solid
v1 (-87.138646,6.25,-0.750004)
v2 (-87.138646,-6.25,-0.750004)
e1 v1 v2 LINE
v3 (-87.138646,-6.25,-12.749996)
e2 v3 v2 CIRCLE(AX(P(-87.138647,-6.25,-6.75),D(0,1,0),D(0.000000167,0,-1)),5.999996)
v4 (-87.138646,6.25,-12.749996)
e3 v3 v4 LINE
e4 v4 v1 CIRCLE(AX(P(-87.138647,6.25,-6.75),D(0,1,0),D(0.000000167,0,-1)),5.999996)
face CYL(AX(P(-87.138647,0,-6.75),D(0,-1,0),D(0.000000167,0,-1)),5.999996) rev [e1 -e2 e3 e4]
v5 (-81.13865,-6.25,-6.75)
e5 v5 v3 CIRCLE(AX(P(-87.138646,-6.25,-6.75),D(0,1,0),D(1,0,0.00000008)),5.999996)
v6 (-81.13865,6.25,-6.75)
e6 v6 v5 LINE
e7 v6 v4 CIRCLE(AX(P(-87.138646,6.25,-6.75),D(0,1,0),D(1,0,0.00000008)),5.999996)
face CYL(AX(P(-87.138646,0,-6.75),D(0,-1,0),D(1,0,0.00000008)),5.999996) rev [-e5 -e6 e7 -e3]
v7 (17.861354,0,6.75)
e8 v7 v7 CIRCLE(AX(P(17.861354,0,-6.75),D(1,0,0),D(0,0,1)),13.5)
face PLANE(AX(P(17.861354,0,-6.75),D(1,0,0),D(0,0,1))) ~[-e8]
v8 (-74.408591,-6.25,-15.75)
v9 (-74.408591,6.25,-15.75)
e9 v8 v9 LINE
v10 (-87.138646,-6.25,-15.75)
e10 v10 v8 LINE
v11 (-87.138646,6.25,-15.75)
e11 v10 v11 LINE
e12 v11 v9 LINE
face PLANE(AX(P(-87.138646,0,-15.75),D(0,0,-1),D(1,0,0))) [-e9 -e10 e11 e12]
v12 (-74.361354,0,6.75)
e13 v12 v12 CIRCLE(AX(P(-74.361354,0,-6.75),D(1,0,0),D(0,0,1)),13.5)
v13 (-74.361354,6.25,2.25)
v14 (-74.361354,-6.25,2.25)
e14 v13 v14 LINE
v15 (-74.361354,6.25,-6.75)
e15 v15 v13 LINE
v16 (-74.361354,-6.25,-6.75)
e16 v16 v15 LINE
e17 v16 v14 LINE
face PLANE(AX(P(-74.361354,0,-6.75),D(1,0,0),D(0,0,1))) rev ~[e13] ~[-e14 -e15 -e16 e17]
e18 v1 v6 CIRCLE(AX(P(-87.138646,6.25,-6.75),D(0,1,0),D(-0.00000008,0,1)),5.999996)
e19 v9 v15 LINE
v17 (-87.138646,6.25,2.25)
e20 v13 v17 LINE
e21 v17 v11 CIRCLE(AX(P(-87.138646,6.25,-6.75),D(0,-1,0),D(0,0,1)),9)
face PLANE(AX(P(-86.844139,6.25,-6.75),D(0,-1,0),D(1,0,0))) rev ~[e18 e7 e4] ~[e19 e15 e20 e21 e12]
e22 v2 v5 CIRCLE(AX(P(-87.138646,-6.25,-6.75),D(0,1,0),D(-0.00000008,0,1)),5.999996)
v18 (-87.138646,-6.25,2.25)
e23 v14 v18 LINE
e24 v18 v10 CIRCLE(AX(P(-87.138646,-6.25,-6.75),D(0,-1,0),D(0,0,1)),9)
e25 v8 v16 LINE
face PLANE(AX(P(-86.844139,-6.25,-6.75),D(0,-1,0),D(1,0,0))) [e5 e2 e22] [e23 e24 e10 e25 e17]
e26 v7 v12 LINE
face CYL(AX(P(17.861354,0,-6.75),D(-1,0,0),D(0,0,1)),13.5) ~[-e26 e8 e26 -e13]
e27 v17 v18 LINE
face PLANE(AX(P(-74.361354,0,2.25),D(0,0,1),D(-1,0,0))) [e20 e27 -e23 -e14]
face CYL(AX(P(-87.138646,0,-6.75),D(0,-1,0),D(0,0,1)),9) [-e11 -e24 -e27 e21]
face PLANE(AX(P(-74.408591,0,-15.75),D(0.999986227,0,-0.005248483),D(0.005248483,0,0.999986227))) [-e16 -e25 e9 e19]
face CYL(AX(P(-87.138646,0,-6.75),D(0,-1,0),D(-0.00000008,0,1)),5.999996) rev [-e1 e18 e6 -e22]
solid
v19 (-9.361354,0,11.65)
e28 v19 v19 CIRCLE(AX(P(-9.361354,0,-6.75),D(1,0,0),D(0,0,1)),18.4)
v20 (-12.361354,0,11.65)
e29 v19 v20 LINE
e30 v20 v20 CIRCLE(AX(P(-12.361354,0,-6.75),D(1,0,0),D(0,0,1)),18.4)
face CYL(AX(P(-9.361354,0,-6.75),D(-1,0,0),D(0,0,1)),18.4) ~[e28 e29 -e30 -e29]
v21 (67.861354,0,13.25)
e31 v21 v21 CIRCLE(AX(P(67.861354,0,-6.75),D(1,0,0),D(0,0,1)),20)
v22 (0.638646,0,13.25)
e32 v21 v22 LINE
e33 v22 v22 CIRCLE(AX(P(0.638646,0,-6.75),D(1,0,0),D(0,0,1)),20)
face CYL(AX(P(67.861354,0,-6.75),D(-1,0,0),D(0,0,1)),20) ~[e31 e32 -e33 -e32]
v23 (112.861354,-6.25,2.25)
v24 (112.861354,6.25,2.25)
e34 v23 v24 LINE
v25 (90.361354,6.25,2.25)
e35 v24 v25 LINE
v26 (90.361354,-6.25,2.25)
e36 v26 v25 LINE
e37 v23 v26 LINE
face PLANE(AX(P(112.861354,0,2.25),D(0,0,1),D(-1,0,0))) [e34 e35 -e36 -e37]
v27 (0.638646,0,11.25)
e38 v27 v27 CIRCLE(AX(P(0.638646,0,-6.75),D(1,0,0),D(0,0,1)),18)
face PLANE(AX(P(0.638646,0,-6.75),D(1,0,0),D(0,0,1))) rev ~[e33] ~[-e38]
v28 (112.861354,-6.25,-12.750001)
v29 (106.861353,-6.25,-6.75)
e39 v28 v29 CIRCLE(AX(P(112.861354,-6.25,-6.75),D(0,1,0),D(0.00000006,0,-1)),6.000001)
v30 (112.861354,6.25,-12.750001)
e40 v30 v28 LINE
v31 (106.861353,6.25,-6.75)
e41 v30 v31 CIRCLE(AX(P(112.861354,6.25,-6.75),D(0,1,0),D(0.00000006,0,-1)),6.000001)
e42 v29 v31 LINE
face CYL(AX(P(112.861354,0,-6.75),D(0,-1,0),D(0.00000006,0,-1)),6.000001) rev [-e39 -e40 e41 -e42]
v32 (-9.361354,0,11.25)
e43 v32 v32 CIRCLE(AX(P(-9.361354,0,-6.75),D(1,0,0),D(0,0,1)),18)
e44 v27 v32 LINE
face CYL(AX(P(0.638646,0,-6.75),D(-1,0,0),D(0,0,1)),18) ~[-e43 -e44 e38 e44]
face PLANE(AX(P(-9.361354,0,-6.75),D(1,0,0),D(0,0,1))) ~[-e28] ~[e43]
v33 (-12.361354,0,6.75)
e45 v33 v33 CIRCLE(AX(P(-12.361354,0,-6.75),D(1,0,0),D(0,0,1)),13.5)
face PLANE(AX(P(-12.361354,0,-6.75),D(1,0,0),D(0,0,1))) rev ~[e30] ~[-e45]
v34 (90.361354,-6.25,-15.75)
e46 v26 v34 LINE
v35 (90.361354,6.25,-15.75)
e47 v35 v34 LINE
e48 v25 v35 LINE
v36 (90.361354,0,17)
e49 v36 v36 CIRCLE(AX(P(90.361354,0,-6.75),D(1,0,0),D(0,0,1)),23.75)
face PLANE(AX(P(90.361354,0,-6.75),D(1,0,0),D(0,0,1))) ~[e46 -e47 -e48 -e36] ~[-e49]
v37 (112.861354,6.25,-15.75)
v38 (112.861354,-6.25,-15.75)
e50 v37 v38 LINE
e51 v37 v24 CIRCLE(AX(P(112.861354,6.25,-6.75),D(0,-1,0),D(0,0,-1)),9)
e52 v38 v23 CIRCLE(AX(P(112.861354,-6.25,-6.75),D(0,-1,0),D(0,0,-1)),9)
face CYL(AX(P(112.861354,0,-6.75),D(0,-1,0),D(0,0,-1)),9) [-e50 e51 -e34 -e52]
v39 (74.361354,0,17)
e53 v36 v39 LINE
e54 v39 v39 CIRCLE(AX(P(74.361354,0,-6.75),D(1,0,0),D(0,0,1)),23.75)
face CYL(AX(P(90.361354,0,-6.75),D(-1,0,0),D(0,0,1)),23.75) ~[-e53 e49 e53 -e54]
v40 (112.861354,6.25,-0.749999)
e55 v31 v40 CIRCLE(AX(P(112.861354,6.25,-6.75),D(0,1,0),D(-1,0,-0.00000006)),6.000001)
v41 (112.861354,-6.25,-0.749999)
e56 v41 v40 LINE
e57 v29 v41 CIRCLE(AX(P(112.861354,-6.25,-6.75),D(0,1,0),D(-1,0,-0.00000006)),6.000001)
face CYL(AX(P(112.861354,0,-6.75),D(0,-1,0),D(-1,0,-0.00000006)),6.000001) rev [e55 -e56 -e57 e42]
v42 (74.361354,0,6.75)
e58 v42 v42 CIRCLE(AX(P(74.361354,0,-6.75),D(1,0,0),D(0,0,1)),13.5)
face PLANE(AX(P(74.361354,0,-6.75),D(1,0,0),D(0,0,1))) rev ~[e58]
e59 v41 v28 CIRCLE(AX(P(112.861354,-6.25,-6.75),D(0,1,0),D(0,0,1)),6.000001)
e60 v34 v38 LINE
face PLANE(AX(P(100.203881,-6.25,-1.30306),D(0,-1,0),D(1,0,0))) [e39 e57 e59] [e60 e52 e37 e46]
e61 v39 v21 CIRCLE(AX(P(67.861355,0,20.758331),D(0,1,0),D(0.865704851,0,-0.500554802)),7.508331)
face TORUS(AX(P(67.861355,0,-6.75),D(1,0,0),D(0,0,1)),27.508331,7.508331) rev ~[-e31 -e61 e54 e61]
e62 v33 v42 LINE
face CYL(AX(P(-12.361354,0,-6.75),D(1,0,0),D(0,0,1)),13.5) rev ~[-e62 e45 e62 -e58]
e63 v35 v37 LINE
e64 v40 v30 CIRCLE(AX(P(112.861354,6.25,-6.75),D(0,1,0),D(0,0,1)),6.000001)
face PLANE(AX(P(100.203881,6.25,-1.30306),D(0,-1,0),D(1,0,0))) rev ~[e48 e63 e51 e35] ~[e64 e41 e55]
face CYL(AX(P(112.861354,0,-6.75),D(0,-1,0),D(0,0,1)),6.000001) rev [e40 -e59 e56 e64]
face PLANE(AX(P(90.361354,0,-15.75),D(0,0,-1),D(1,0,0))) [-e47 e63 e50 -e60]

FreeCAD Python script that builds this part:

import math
import FreeCAD as App
import Part
import Sketcher
Q = App.Units.Quantity

doc = App.newDocument("Part")
body = doc.addObject("PartDesign::Body", "Body")

# Sketch on XZ plane
sketch1 = body.newObject("Sketcher::SketchObject", "Sketch")
sketch1.AttachmentSupport = (doc.getObject("XZ_Plane"), [""])
sketch1.MapMode = "FlatFace"
sketch1.addGeometry([
    Part.LineSegment(App.Vector(-12.36, 11.65, 0), App.Vector(-12.36, 6.75, 0)),  # 0
    Part.LineSegment(App.Vector(-12.36, 6.75, 0), App.Vector(74.36, 6.75, 0)),  # 1
    Part.LineSegment(App.Vector(74.36, 6.75, 0), App.Vector(74.36, -6.75, 0)),  # 2
    Part.LineSegment(App.Vector(74.36, -6.75, 0), App.Vector(90.36, -6.75, 0)),  # 3
    Part.LineSegment(App.Vector(90.36, -6.75, 0), App.Vector(90.36, 17, 0)),  # 4
    Part.LineSegment(App.Vector(90.36, 17, 0), App.Vector(74.36, 17, 0)),  # 5
    Part.ArcOfCircle(Part.Circle(App.Vector(67.86, 20.76, 0), App.Vector(0, 0, 1), 7.51), math.radians(-90), math.radians(-30)),  # 6
    Part.LineSegment(App.Vector(67.86, 13.25, 0), App.Vector(0.64, 13.25, 0)),  # 7
    Part.LineSegment(App.Vector(0.64, 13.25, 0), App.Vector(0.64, 11.25, 0)),  # 8
    Part.LineSegment(App.Vector(0.64, 11.25, 0), App.Vector(-9.36, 11.25, 0)),  # 9
    Part.LineSegment(App.Vector(-9.36, 11.25, 0), App.Vector(-9.36, 11.65, 0)),  # 10
    Part.LineSegment(App.Vector(-9.36, 11.65, 0), App.Vector(-12.36, 11.65, 0)),  # 11
], False)
sketch1.addGeometry(Part.LineSegment(App.Vector(-12.36, -6.75, 0), App.Vector(90.36, -6.75, 0)), True)  # axis
sketch1.addConstraint([
    Sketcher.Constraint("Coincident", 0, 2, 1, 1),
    Sketcher.Constraint("Coincident", 1, 2, 2, 1),
    Sketcher.Constraint("Coincident", 2, 2, 3, 1),
    Sketcher.Constraint("Coincident", 3, 2, 4, 1),
    Sketcher.Constraint("Coincident", 4, 2, 5, 1),
    Sketcher.Constraint("Coincident", 5, 2, 6, 2),
    Sketcher.Constraint("Tangent", 6, 1, 7, 1),
    Sketcher.Constraint("Coincident", 7, 2, 8, 1),
    Sketcher.Constraint("Coincident", 8, 2, 9, 1),
    Sketcher.Constraint("Coincident", 9, 2, 10, 1),
    Sketcher.Constraint("Coincident", 10, 2, 11, 1),
    Sketcher.Constraint("Coincident", 11, 2, 0, 1),
    Sketcher.Constraint("Vertical", 0),
    Sketcher.Constraint("Horizontal", 1),
    Sketcher.Constraint("Vertical", 2),
    Sketcher.Constraint("Horizontal", 3),
    Sketcher.Constraint("Vertical", 4),
    Sketcher.Constraint("Horizontal", 5),
    Sketcher.Constraint("Horizontal", 7),
    Sketcher.Constraint("Vertical", 8),
    Sketcher.Constraint("Horizontal", 9),
    Sketcher.Constraint("Vertical", 10),
    Sketcher.Constraint("Horizontal", 11),
    Sketcher.Constraint("Horizontal", 12),
    Sketcher.Constraint("Coincident", 12, 2, 3, 2),
    Sketcher.Constraint("Symmetric", 0, 2, 12, 1, -1),
    Sketcher.Constraint("Vertical", 2, 2, 5, 2),
    Sketcher.Constraint("DistanceX", 3, 1, 3, 2, Q("16 mm")),
    Sketcher.Constraint("DistanceX", 9, 2, 9, 1, Q("10 mm")),
    Sketcher.Constraint("DistanceX", 11, 2, 11, 1, Q("3 mm")),
    Sketcher.Constraint("DistanceY", 8, 2, 8, 1, Q("2 mm")),
    Sketcher.Constraint("DistanceY", 0, 2, 0, 1, Q("4.9 mm")),
    Sketcher.Constraint("DistanceY", 2, 2, 2, 1, Q("13.5 mm")),
    Sketcher.Constraint("DistanceY", 10, 1, 10, 2, Q("0.4 mm")),
    Sketcher.Constraint("DistanceY", -1, 1, 4, 2, Q("17 mm")),
    Sketcher.Constraint("DistanceX", 6, 3, 1, 2, Q("6.499999 mm")),
    Sketcher.Constraint("DistanceX", 1, 1, 1, 2, Q("86.722708 mm")),
    Sketcher.Constraint("DistanceX", -1, 1, 6, 3, Q("67.861355 mm")),
])
revolution = body.newObject("PartDesign::Revolution", "Revolution")
revolution.Profile = sketch1
revolution.ReferenceAxis = (sketch1, ["Axis0"])
revolution.Angle = 360

# Sketch on XZ plane
sketch2 = body.newObject("Sketcher::SketchObject", "Sketch001")
sketch2.AttachmentSupport = (doc.getObject("XZ_Plane"), [""])
sketch2.MapMode = "FlatFace"
sketch2.addGeometry([
    Part.LineSegment(App.Vector(90, 2, 0), App.Vector(90, -16, 0)),  # 0
    Part.LineSegment(App.Vector(90, -16, 0), App.Vector(113, -16, 0)),  # 1
    Part.ArcOfCircle(Part.Circle(App.Vector(113, -7, 0), App.Vector(0, 0, 1), 9), math.radians(-90), math.radians(90)),  # 2
    Part.LineSegment(App.Vector(113, 2, 0), App.Vector(90, 2, 0)),  # 3
    Part.ArcOfCircle(Part.Circle(App.Vector(113, -7, 0), App.Vector(0, 0, 1), 6), math.radians(-90), math.radians(90)),  # 4
    Part.ArcOfCircle(Part.Circle(App.Vector(113, -7, 0), App.Vector(0, 0, 1), 6), math.radians(180), math.radians(270)),  # 5
    Part.ArcOfCircle(Part.Circle(App.Vector(113, -7, 0), App.Vector(0, 0, 1), 6), math.radians(90), math.radians(180)),  # 6
], False)
sketch2.addConstraint([
    Sketcher.Constraint("Coincident", 0, 2, 1, 1),
    Sketcher.Constraint("Tangent", 1, 2, 2, 1),
    Sketcher.Constraint("Tangent", 2, 2, 3, 1),
    Sketcher.Constraint("Coincident", 3, 2, 0, 1),
    Sketcher.Constraint("Tangent", 4, 1, 5, 2),
    Sketcher.Constraint("Tangent", 5, 1, 6, 2),
    Sketcher.Constraint("Tangent", 6, 1, 4, 2),
    Sketcher.Constraint("Vertical", 0),
    Sketcher.Constraint("Horizontal", 1),
    Sketcher.Constraint("Horizontal", 3),
    Sketcher.Constraint("Coincident", 4, 3, 2, 3),
    Sketcher.Constraint("Horizontal", 6, 3, 5, 1),
    Sketcher.Constraint("Vertical", 2, 2, 4, 1),
    Sketcher.Constraint("Vertical", 4, 1, 6, 1),
    Sketcher.Constraint("Radius", 2, Q("9 mm")),
    Sketcher.Constraint("Radius", 4, Q("6.000001 mm")),
    Sketcher.Constraint("DistanceX", 1, 1, 1, 2, Q("22.5 mm")),
    Sketcher.Constraint("DistanceY", 2, 3, -1, 1, Q("6.75 mm")),
    Sketcher.Constraint("DistanceX", -1, 1, 2, 3, Q("112.861354 mm")),
])
pad1 = body.newObject("PartDesign::Pad", "Pad")
pad1.Profile = sketch2
pad1.Length = 12.5
pad1.Midplane = True
body2 = doc.addObject("PartDesign::Body", "Body001")

# Sketch on XZ plane
sketch3 = body2.newObject("Sketcher::SketchObject", "Sketch002")
sketch3.AttachmentSupport = (doc.getObject("XZ_Plane001"), [""])
sketch3.MapMode = "FlatFace"
sketch3.addGeometry([
    Part.LineSegment(App.Vector(-74, -7, 0), App.Vector(18, -7, 0)),
    Part.LineSegment(App.Vector(18, -7, 0), App.Vector(18, 7, 0)),
    Part.LineSegment(App.Vector(18, 7, 0), App.Vector(-74, 7, 0)),
    Part.LineSegment(App.Vector(-74, 7, 0), App.Vector(-74, -7, 0)),
], False)
sketch3.addGeometry(Part.LineSegment(App.Vector(-74, -7, 0), App.Vector(18, -7, 0)), True)  # axis
sketch3.addConstraint([
    Sketcher.Constraint("Coincident", 0, 2, 1, 1),
    Sketcher.Constraint("Coincident", 1, 2, 2, 1),
    Sketcher.Constraint("Coincident", 2, 2, 3, 1),
    Sketcher.Constraint("Coincident", 3, 2, 0, 1),
    Sketcher.Constraint("Horizontal", 0),
    Sketcher.Constraint("Vertical", 1),
    Sketcher.Constraint("Horizontal", 2),
    Sketcher.Constraint("Vertical", 3),
    Sketcher.Constraint("Horizontal", 4),
    Sketcher.Constraint("Coincident", 4, 1, 3, 2),
    Sketcher.Constraint("Symmetric", 1, 2, 4, 2, -1),
    Sketcher.Constraint("DistanceY", 1, 1, 1, 2, Q("13.5 mm")),
    Sketcher.Constraint("DistanceX", 0, 1, 0, 2, Q("92.222708 mm")),
    Sketcher.Constraint("DistanceX", -1, 1, 0, 2, Q("17.861354 mm")),
])
revolution2 = body2.newObject("PartDesign::Revolution", "Revolution001")
revolution2.Profile = sketch3
revolution2.ReferenceAxis = (sketch3, ["Axis0"])
revolution2.Angle = 360

# Sketch on XZ plane
sketch4 = body2.newObject("Sketcher::SketchObject", "Sketch003")
sketch4.AttachmentSupport = (doc.getObject("XZ_Plane001"), [""])
sketch4.MapMode = "FlatFace"
sketch4.addGeometry([
    Part.LineSegment(App.Vector(-74, -7, 0), App.Vector(-74, 2, 0)),  # 0
    Part.LineSegment(App.Vector(-74, 2, 0), App.Vector(-87, 2, 0)),  # 1
    Part.ArcOfCircle(Part.Circle(App.Vector(-87, -7, 0), App.Vector(0, 0, 1), 9), math.radians(90), math.radians(270)),  # 2
    Part.LineSegment(App.Vector(-87, -16, 0), App.Vector(-74, -16, 0)),  # 3
    Part.LineSegment(App.Vector(-74, -16, 0), App.Vector(-74, -7, 0)),  # 4
    Part.ArcOfCircle(Part.Circle(App.Vector(-87, -7, 0), App.Vector(0, 0, 1), 6), math.radians(90), math.radians(270)),  # 5
    Part.ArcOfCircle(Part.Circle(App.Vector(-87, -7, 0), App.Vector(0, 0, 1), 6), math.radians(0), math.radians(90)),  # 6
    Part.ArcOfCircle(Part.Circle(App.Vector(-87, -7, 0), App.Vector(0, 0, 1), 6), math.radians(-90), math.radians(0)),  # 7
], False)
sketch4.addConstraint([
    Sketcher.Constraint("Coincident", 0, 2, 1, 1),
    Sketcher.Constraint("Tangent", 1, 2, 2, 1),
    Sketcher.Constraint("Tangent", 2, 2, 3, 1),
    Sketcher.Constraint("Coincident", 3, 2, 4, 1),
    Sketcher.Constraint("Coincident", 4, 2, 0, 1),
    Sketcher.Constraint("Tangent", 5, 1, 6, 2),
    Sketcher.Constraint("Tangent", 6, 1, 7, 2),
    Sketcher.Constraint("Tangent", 7, 1, 5, 2),
    Sketcher.Constraint("Vertical", 0),
    Sketcher.Constraint("Horizontal", 1),
    Sketcher.Constraint("Horizontal", 3),
    Sketcher.Constraint("Coincident", 5, 3, 2, 3),
    Sketcher.Constraint("Horizontal", 7, 3, 4, 2),
    Sketcher.Constraint("Horizontal", 4, 2, 6, 1),
    Sketcher.Constraint("Vertical", 2, 2, 5, 1),
    Sketcher.Constraint("Vertical", 5, 1, 7, 1),
    Sketcher.Constraint("Radius", 2, Q("9 mm")),
    Sketcher.Constraint("DistanceY", 2, 3, -1, 1, Q("6.75 mm")),
    Sketcher.Constraint("Radius", 5, Q("5.999996 mm")),
    Sketcher.Constraint("DistanceX", 1, 2, 1, 1, Q("12.777292 mm")),
    Sketcher.Constraint("DistanceX", 3, 1, 3, 2, Q("12.730055 mm")),
    Sketcher.Constraint("DistanceX", 3, 2, -1, 1, Q("74.408591 mm")),
])
pad2 = body2.newObject("PartDesign::Pad", "Pad001")
pad2.Profile = sketch4
pad2.Length = 12.5
pad2.Midplane = True

doc.recompute()
